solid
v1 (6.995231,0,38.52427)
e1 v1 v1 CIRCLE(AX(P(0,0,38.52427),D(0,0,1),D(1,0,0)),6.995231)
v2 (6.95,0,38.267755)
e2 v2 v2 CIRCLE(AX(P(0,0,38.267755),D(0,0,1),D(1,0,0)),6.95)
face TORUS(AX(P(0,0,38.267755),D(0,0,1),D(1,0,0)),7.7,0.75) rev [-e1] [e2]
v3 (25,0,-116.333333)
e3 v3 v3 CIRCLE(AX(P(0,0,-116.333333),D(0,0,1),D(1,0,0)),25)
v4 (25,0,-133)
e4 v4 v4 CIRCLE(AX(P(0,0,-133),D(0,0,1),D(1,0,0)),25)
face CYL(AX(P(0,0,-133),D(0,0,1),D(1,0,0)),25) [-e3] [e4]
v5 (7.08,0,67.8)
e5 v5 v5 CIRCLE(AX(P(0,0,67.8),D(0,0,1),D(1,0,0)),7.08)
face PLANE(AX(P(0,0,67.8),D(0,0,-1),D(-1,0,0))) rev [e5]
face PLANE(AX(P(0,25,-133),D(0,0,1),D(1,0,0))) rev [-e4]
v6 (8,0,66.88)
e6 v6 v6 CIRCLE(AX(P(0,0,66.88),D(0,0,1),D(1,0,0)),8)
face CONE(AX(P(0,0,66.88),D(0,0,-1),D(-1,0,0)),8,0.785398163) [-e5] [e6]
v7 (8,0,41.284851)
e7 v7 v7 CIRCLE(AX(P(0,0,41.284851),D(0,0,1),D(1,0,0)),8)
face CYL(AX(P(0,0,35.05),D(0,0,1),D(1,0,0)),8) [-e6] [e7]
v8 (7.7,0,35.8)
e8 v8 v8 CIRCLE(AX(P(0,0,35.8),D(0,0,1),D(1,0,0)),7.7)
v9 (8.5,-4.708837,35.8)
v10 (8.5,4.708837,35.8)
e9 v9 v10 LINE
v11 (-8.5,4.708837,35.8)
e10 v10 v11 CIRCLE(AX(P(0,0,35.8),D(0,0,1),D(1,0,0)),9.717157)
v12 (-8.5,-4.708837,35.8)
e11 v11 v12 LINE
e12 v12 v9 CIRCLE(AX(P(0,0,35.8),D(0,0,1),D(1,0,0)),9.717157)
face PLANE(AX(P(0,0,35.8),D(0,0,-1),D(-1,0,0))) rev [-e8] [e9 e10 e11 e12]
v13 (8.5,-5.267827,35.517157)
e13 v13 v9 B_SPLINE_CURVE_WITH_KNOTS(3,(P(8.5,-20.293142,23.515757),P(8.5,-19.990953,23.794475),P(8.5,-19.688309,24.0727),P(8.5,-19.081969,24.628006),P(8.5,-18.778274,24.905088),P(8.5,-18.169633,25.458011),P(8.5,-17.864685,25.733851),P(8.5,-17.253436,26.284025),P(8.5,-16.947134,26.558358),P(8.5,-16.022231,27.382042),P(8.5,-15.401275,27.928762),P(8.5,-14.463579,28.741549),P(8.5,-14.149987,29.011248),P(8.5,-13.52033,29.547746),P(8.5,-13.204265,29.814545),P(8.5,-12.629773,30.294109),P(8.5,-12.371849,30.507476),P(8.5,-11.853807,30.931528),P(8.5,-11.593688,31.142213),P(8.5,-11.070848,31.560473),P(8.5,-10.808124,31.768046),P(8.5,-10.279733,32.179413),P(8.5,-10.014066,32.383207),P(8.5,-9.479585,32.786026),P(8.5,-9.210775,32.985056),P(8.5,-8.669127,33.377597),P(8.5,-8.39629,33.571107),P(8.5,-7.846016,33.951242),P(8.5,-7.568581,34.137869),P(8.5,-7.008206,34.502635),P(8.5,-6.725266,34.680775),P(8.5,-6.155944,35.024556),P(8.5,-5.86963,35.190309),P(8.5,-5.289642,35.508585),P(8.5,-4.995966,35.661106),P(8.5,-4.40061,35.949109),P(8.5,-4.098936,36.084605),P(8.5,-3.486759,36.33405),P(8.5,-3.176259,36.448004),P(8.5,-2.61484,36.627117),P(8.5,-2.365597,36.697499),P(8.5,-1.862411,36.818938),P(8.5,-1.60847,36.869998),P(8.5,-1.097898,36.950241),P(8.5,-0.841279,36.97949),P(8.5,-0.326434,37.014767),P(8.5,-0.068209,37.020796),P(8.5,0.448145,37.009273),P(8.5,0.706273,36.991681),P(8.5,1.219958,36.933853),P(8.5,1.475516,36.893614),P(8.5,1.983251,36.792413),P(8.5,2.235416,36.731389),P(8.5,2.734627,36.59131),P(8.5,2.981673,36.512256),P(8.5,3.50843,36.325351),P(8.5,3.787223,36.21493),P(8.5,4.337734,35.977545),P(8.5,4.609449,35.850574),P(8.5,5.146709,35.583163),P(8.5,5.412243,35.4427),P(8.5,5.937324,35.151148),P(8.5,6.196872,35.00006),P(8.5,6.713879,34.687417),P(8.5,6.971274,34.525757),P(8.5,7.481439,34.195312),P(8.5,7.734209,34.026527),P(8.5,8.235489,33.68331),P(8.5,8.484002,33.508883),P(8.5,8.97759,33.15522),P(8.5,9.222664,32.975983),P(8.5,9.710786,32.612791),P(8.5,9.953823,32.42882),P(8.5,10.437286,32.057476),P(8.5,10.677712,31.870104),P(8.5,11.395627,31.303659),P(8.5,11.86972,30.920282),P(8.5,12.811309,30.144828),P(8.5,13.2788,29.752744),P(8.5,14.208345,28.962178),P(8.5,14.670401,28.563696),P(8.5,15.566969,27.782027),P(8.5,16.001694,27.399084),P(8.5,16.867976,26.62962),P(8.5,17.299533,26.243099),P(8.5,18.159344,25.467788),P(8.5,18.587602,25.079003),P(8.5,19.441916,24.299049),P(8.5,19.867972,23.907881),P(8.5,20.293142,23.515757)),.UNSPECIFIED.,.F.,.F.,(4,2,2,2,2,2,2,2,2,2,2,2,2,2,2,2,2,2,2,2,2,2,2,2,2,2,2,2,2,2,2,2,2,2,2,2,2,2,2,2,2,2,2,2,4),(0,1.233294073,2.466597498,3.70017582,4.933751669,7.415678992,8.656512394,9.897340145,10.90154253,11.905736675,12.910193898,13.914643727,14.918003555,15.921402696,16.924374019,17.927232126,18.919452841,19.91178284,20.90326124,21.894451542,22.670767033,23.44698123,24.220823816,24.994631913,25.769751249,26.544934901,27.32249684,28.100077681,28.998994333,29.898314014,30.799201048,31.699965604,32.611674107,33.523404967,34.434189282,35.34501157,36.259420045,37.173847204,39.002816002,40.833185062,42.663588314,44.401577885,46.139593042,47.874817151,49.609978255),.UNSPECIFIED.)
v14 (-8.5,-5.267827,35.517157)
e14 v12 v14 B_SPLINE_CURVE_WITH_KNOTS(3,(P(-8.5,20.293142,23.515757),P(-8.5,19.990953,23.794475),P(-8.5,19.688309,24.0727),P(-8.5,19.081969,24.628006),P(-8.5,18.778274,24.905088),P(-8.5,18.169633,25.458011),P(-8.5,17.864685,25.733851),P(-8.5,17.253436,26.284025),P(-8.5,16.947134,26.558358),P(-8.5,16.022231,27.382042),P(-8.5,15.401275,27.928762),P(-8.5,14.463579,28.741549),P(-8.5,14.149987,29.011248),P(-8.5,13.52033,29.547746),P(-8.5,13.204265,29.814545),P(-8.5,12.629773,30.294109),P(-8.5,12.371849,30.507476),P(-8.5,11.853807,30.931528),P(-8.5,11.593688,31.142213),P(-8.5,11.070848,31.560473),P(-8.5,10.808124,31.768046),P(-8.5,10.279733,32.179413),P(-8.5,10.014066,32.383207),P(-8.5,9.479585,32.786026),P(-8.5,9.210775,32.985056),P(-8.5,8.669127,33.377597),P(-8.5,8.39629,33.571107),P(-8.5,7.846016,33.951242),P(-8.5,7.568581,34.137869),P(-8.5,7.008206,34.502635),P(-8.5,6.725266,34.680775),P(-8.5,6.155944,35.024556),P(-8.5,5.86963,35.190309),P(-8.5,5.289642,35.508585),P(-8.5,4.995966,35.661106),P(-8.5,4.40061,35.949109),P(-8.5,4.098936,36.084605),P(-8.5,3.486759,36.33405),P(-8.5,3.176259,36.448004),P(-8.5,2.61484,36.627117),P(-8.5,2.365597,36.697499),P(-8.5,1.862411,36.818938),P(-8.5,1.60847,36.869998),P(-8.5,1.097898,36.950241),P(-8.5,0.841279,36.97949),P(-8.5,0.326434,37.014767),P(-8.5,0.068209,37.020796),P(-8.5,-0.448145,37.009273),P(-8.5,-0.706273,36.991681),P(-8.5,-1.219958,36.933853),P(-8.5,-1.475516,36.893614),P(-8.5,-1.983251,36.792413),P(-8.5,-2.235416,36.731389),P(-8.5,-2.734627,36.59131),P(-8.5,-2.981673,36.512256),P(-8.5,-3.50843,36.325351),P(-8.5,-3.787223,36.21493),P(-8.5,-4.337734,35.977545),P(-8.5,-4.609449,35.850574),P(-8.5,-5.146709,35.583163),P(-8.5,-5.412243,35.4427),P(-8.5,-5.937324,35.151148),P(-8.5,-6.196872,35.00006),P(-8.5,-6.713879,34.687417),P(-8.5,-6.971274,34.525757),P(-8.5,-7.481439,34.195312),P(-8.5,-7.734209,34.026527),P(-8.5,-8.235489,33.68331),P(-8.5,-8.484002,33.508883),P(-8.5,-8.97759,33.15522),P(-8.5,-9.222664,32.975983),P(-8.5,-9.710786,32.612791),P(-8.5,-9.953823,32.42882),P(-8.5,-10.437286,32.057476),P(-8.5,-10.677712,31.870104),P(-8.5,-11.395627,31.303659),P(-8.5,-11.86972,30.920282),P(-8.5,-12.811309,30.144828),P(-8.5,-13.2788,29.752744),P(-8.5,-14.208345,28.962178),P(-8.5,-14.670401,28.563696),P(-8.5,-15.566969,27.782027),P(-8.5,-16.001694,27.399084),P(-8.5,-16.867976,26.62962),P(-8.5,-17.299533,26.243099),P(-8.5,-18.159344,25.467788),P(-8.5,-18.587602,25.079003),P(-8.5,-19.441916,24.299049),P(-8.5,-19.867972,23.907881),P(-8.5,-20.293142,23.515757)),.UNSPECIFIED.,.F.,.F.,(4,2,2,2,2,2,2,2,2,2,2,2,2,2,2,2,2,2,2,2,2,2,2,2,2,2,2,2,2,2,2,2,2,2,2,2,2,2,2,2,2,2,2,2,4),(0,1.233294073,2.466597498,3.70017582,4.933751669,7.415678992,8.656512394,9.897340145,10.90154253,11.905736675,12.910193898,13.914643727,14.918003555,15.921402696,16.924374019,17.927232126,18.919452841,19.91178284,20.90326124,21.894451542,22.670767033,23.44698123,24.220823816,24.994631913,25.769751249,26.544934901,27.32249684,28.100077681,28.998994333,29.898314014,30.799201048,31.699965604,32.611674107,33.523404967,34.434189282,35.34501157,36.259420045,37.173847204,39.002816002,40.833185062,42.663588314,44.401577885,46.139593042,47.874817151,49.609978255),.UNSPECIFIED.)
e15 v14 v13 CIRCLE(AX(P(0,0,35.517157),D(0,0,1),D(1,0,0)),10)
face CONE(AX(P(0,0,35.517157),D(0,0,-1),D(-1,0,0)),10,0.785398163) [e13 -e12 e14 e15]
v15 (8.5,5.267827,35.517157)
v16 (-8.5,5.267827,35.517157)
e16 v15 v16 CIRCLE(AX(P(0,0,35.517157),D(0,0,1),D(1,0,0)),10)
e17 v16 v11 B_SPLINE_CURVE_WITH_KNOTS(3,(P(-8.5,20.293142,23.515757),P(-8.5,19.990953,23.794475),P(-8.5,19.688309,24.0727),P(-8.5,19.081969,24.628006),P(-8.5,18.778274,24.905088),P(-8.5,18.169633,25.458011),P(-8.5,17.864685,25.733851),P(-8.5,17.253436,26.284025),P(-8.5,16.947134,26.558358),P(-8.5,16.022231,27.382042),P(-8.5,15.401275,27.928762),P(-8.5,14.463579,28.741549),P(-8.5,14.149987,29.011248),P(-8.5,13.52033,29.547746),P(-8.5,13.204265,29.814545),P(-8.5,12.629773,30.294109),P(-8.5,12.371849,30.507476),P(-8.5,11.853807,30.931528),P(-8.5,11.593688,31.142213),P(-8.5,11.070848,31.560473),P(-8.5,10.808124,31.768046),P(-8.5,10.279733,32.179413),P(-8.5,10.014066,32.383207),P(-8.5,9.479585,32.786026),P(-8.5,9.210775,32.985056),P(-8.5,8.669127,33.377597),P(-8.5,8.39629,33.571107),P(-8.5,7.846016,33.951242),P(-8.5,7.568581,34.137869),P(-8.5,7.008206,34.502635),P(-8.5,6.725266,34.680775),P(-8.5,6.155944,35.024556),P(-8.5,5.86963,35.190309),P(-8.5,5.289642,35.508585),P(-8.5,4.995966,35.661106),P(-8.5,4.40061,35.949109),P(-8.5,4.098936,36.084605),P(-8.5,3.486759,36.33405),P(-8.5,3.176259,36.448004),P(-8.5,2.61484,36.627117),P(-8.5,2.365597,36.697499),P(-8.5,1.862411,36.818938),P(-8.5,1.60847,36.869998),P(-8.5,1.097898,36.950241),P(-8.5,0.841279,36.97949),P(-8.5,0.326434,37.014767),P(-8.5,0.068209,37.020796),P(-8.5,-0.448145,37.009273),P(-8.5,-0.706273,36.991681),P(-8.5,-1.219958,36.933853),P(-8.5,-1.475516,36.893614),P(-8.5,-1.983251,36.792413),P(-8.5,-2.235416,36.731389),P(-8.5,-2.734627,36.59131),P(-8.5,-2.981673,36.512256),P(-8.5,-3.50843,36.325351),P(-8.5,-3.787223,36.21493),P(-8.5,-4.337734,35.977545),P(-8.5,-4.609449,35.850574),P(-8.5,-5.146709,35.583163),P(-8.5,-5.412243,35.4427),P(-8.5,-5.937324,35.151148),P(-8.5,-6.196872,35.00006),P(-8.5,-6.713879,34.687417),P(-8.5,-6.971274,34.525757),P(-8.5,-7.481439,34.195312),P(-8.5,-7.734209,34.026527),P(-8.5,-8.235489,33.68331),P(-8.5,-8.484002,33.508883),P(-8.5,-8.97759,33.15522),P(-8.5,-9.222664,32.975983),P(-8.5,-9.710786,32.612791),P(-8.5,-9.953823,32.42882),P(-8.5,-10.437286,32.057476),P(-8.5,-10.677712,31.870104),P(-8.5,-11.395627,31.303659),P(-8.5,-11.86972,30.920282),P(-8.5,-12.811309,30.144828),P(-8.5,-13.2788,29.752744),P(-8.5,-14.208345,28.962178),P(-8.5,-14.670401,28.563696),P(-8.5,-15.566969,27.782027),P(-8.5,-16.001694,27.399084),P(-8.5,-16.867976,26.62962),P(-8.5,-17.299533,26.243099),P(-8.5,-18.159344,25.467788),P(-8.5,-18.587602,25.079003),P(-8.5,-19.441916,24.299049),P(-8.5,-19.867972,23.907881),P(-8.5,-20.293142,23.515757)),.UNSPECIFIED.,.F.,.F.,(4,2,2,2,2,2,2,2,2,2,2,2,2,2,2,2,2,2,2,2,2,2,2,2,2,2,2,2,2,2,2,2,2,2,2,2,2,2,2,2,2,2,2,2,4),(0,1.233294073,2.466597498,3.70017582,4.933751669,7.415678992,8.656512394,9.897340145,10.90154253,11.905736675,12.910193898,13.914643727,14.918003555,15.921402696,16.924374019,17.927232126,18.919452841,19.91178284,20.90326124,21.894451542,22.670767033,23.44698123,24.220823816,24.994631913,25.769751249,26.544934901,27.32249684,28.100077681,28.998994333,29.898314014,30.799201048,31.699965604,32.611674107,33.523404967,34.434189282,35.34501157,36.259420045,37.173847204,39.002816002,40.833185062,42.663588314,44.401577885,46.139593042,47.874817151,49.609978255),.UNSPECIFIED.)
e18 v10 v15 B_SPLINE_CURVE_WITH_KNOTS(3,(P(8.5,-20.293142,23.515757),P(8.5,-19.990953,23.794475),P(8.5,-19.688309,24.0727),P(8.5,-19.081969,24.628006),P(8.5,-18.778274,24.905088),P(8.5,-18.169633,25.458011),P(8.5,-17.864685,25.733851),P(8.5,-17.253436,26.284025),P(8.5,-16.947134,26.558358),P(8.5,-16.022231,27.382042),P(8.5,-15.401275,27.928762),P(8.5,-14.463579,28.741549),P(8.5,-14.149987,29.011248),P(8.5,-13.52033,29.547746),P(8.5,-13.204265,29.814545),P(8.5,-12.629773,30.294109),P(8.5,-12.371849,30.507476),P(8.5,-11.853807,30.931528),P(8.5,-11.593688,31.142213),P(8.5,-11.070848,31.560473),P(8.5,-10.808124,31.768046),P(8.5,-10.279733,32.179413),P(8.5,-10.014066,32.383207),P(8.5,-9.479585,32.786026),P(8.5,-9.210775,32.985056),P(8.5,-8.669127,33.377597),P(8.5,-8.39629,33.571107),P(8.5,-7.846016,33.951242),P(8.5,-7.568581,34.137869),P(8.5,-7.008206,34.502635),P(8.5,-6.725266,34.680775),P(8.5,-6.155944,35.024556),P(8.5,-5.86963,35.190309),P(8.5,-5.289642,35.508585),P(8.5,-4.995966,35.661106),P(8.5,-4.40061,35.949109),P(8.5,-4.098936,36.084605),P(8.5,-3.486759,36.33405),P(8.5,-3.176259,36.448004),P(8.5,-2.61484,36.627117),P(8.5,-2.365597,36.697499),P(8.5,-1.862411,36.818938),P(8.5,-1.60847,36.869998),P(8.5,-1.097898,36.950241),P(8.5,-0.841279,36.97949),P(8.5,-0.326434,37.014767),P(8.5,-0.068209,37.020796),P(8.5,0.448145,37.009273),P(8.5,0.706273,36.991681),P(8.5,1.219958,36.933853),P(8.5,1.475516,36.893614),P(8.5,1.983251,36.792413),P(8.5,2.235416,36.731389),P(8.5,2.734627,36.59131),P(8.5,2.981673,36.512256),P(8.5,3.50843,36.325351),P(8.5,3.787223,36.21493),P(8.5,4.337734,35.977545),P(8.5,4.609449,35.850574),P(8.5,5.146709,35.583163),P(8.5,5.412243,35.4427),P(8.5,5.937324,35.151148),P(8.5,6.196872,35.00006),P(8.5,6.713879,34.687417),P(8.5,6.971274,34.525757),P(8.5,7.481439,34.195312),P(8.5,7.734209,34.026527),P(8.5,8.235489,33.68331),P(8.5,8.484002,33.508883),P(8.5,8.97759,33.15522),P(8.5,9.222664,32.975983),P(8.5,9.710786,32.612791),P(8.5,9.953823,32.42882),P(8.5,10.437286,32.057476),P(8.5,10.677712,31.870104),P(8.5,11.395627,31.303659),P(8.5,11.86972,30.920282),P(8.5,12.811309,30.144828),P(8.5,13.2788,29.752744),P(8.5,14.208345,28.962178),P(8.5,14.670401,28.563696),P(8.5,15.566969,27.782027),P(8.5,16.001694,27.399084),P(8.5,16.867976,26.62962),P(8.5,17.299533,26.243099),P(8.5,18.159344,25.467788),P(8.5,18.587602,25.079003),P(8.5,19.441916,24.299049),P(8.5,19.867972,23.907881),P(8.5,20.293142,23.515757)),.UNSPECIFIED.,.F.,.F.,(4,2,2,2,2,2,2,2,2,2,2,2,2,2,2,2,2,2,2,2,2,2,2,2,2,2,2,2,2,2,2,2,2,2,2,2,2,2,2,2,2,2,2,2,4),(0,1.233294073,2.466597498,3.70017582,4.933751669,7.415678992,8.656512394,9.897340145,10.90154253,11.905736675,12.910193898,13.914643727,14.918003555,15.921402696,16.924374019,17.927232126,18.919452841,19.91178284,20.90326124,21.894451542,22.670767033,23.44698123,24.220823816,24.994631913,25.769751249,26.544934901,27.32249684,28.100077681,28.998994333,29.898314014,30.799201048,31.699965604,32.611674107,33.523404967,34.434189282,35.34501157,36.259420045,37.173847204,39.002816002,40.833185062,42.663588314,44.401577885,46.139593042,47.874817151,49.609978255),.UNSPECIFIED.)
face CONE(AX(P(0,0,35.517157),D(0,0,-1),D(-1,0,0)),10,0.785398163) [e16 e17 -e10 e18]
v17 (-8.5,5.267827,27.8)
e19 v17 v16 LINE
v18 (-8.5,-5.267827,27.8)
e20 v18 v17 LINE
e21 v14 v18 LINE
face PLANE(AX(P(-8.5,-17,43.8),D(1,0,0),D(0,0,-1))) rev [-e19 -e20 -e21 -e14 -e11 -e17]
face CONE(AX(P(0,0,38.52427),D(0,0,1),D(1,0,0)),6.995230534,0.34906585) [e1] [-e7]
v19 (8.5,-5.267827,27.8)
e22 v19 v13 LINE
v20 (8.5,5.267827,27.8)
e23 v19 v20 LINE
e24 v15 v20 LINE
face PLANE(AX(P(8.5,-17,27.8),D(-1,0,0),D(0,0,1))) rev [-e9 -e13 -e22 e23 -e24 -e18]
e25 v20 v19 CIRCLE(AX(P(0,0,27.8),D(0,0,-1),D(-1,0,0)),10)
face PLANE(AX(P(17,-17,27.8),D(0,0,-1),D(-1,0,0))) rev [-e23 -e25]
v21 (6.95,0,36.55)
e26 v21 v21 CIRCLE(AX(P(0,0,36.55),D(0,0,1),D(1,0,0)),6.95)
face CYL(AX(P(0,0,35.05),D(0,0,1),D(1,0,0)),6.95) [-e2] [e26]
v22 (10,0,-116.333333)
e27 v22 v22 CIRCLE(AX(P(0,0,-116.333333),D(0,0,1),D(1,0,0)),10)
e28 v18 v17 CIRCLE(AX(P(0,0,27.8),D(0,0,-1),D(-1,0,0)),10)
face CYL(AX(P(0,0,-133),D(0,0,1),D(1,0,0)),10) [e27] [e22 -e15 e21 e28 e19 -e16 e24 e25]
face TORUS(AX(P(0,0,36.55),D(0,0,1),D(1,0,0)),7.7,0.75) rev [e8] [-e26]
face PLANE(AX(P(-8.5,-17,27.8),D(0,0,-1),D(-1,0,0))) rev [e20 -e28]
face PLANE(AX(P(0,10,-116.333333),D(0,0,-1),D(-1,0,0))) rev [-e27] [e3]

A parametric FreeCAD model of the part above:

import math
import FreeCAD as App
import Part
import Sketcher
from FreeCAD import Vector
Q = App.Units.Quantity

doc = App.newDocument("Part")
params = doc.addObject("Spreadsheet::Sheet", "Params")
for row, (alias, value) in enumerate([
    ("sketch1_width", "25 mm"),
    ("sketch1_width2", "15 mm"),
    ("sketch1_height", "168.8 mm"),
    ("sketch1_length", "0.4 mm"),
    ("revolution_angle", "360 deg"),
    ("sketch2_width", "34 mm"),
    ("sketch2_width2", "17 mm"),
    ("sketch2_height", "16 mm"),
    ("sketch3_radius", "0.75 mm"),
    ("sketch3_width", "7.7 mm"),
    ("sketch3_width2", "7.08 mm"),
    ("sketch3_height", "32.75 mm"),
    ("revolution2_angle", "360 deg"),
], start=1):
    params.set(f"A{row}", alias)
    params.set(f"B{row}", "=" + value)
    params.setAlias(f"B{row}", alias)

body = doc.addObject("PartDesign::Body", "Body")

sketch1 = doc.addObject("Sketcher::SketchObject", "Sketch")
body.addObject(sketch1)
sketch1.AttachmentSupport = (doc.YZ_Plane, [""])
sketch1.MapMode = "FlatFace"
sketch1.addGeometry([
    Part.LineSegment(Vector(9.72, 35.8, 0), Vector(0, 35.8, 0)),
    Part.LineSegment(Vector(0, 35.8, 0), Vector(0, -133, 0)),
    Part.LineSegment(Vector(0, -133, 0), Vector(25, -133, 0)),
    Part.LineSegment(Vector(25, -133, 0), Vector(25, -116.33, 0)),
    Part.LineSegment(Vector(25, -116.33, 0), Vector(10, -116.33, 0)),
    Part.LineSegment(Vector(10, -116.33, 0), Vector(10, 35.52, 0)),
    Part.LineSegment(Vector(10, 35.52, 0), Vector(9.72, 35.8, 0)),
], False)
sketch1.addConstraint([
    Sketcher.Constraint("Coincident", 0, 2, 1, 1),
    Sketcher.Constraint("Coincident", 1, 2, 2, 1),
    Sketcher.Constraint("Coincident", 2, 2, 3, 1),
    Sketcher.Constraint("Coincident", 3, 2, 4, 1),
    Sketcher.Constraint("Coincident", 4, 2, 5, 1),
    Sketcher.Constraint("Coincident", 5, 2, 6, 1),
    Sketcher.Constraint("Coincident", 6, 2, 0, 1),
    Sketcher.Constraint("Horizontal", 0),
    Sketcher.Constraint("Vertical", 1),
    Sketcher.Constraint("Horizontal", 2),
    Sketcher.Constraint("Vertical", 3),
    Sketcher.Constraint("Horizontal", 4),
    Sketcher.Constraint("Vertical", 5),
    Sketcher.Constraint("PointOnObject", 0, 2, -2),
    Sketcher.Constraint("DistanceX", 2, 1, 2, 2, 25.0),
    Sketcher.Constraint("DistanceX", 4, 2, 4, 1, 15.0),
    Sketcher.Constraint("Angle", 6, Q("135 deg")),
    Sketcher.Constraint("DistanceY", 1, 2, 1, 1, 168.8),
    Sketcher.Constraint("DistanceY", 1, 2, -1, 1, 133.0),
    Sketcher.Constraint("Distance", 6, 0.4),
    Sketcher.Constraint("DistanceY", 5, 1, 5, 2, 151.850491),
])
sketch1.setExpression("Constraints[14]", "Params.sketch1_width")
sketch1.setExpression("Constraints[15]", "Params.sketch1_width2")
sketch1.setExpression("Constraints[17]", "Params.sketch1_height")
sketch1.setExpression("Constraints[19]", "Params.sketch1_length")
revolution = doc.addObject("PartDesign::Revolution", "Revolution")
body.addObject(revolution)
revolution.Profile = sketch1
revolution.ReferenceAxis = (sketch1, ["V_Axis"])
revolution.setExpression("Angle", "Params.revolution_angle")

sketch2 = doc.addObject("Sketcher::SketchObject", "Sketch001")
body.addObject(sketch2)
sketch2.AttachmentSupport = (doc.XZ_Plane, [""])
sketch2.MapMode = "FlatFace"
sketch2.addGeometry([
    Part.LineSegment(Vector(-17, 62, 0), Vector(17, 62, 0)),
    Part.LineSegment(Vector(17, 62, 0), Vector(17, 28, 0)),
    Part.LineSegment(Vector(17, 28, 0), Vector(8, 28, 0)),
    Part.LineSegment(Vector(8, 28, 0), Vector(8, 44, 0)),
    Part.LineSegment(Vector(8, 44, 0), Vector(-8, 44, 0)),
    Part.LineSegment(Vector(-8, 44, 0), Vector(-8, 28, 0)),
    Part.LineSegment(Vector(-8, 28, 0), Vector(-17, 28, 0)),
    Part.LineSegment(Vector(-17, 28, 0), Vector(-17, 62, 0)),
], False)
sketch2.addConstraint([
    Sketcher.Constraint("Coincident", 0, 2, 1, 1),
    Sketcher.Constraint("Coincident", 1, 2, 2, 1),
    Sketcher.Constraint("Coincident", 2, 2, 3, 1),
    Sketcher.Constraint("Coincident", 3, 2, 4, 1),
    Sketcher.Constraint("Coincident", 4, 2, 5, 1),
    Sketcher.Constraint("Coincident", 5, 2, 6, 1),
    Sketcher.Constraint("Coincident", 6, 2, 7, 1),
    Sketcher.Constraint("Coincident", 7, 2, 0, 1),
    Sketcher.Constraint("Horizontal", 0),
    Sketcher.Constraint("Vertical", 1),
    Sketcher.Constraint("Horizontal", 2),
    Sketcher.Constraint("Vertical", 3),
    Sketcher.Constraint("Horizontal", 4),
    Sketcher.Constraint("Vertical", 5),
    Sketcher.Constraint("Horizontal", 6),
    Sketcher.Constraint("Vertical", 7),
    Sketcher.Constraint("Symmetric", 2, 2, 5, 2, -2),
    Sketcher.Constraint("Equal", 2, 6),
    Sketcher.Constraint("Equal", 0, 1),
    Sketcher.Constraint("DistanceX", 0, 1, 0, 2, 34.0),
    Sketcher.Constraint("DistanceX", 4, 2, 4, 1, 17.0),
    Sketcher.Constraint("DistanceY", 3, 1, 3, 2, 16.0),
    Sketcher.Constraint("DistanceY", -1, 1, 0, 2, 61.8),
])
sketch2.setExpression("Constraints[19]", "Params.sketch2_width")
sketch2.setExpression("Constraints[20]", "Params.sketch2_width2")
sketch2.setExpression("Constraints[21]", "Params.sketch2_height")
pocket1 = doc.addObject("PartDesign::Pocket", "Pocket")
body.addObject(pocket1)
pocket1.Profile = sketch2
pocket1.Type = "ThroughAll"
pocket1.Midplane = True

sketch3 = doc.addObject("Sketcher::SketchObject", "Sketch002")
body.addObject(sketch3)
sketch3.AttachmentSupport = (doc.YZ_Plane, [""])
sketch3.MapMode = "FlatFace"
sketch3.addGeometry([
    Part.LineSegment(Vector(7.08, 67.8, 0), Vector(0, 67.8, 0)),
    Part.LineSegment(Vector(0, 67.8, 0), Vector(0, 35.05, 0)),
    Part.LineSegment(Vector(0, 35.05, 0), Vector(7.7, 35.05, 0)),
    Part.LineSegment(Vector(7.7, 35.05, 0), Vector(7.7, 35.8, 0)),
    Part.ArcOfCircle(Part.Circle(Vector(7.7, 36.55, 0), Vector(0, 0, 1), 0.75), math.radians(180), math.radians(270)),
    Part.LineSegment(Vector(6.95, 36.55, 0), Vector(6.95, 38.27, 0)),
    Part.ArcOfCircle(Part.Circle(Vector(7.7, 38.27, 0), Vector(0, 0, 1), 0.75), math.radians(160), math.radians(180)),
    Part.LineSegment(Vector(7, 38.52, 0), Vector(8, 41.28, 0)),
    Part.LineSegment(Vector(8, 41.28, 0), Vector(8, 66.88, 0)),
    Part.LineSegment(Vector(8, 66.88, 0), Vector(7.08, 67.8, 0)),
], False)
sketch3.addConstraint([
    Sketcher.Constraint("Coincident", 0, 2, 1, 1),
    Sketcher.Constraint("Coincident", 1, 2, 2, 1),
    Sketcher.Constraint("Coincident", 2, 2, 3, 1),
    Sketcher.Constraint("Coincident", 3, 2, 4, 2),
    Sketcher.Constraint("Tangent", 4, 1, 5, 1),
    Sketcher.Constraint("Tangent", 5, 2, 6, 2),
    Sketcher.Constraint("Tangent", 6, 1, 7, 1),
    Sketcher.Constraint("Coincident", 7, 2, 8, 1),
    Sketcher.Constraint("Coincident", 8, 2, 9, 1),
    Sketcher.Constraint("Coincident", 9, 2, 0, 1),
    Sketcher.Constraint("Horizontal", 0),
    Sketcher.Constraint("Vertical", 1),
    Sketcher.Constraint("Horizontal", 2),
    Sketcher.Constraint("Vertical", 3),
    Sketcher.Constraint("Vertical", 5),
    Sketcher.Constraint("Vertical", 8),
    Sketcher.Constraint("Equal", 4, 6),
    Sketcher.Constraint("PointOnObject", 0, 2, -2),
    Sketcher.Constraint("Vertical", 6, 3, 2, 2),
    Sketcher.Constraint("Angle", 7, Q("70 deg")),
    Sketcher.Constraint("Angle", 9, Q("135 deg")),
    Sketcher.Constraint("Radius", 4, 0.75),
    Sketcher.Constraint("DistanceX", 2, 1, 2, 2, 7.7),
    Sketcher.Constraint("DistanceX", -1, 1, 7, 2, 8.0),
    Sketcher.Constraint("DistanceY", 3, 2, 0, 2, 32.0),
    Sketcher.Constraint("DistanceX", 0, 2, 0, 1, 7.08),
    Sketcher.Constraint("DistanceY", 1, 2, 1, 1, 32.75),
    Sketcher.Constraint("DistanceY", -1, 1, 0, 2, 67.8),
    Sketcher.Constraint("DistanceY", 8, 1, 8, 2, 25.595149),
])
sketch3.setExpression("Constraints[21]", "Params.sketch3_radius")
sketch3.setExpression("Constraints[22]", "Params.sketch3_width")
sketch3.setExpression("Constraints[25]", "Params.sketch3_width2")
sketch3.setExpression("Constraints[26]", "Params.sketch3_height")
revolution2 = doc.addObject("PartDesign::Revolution", "Revolution001")
body.addObject(revolution2)
revolution2.Profile = sketch3
revolution2.ReferenceAxis = (sketch3, ["V_Axis"])
revolution2.setExpression("Angle", "Params.revolution2_angle")

doc.recompute()
